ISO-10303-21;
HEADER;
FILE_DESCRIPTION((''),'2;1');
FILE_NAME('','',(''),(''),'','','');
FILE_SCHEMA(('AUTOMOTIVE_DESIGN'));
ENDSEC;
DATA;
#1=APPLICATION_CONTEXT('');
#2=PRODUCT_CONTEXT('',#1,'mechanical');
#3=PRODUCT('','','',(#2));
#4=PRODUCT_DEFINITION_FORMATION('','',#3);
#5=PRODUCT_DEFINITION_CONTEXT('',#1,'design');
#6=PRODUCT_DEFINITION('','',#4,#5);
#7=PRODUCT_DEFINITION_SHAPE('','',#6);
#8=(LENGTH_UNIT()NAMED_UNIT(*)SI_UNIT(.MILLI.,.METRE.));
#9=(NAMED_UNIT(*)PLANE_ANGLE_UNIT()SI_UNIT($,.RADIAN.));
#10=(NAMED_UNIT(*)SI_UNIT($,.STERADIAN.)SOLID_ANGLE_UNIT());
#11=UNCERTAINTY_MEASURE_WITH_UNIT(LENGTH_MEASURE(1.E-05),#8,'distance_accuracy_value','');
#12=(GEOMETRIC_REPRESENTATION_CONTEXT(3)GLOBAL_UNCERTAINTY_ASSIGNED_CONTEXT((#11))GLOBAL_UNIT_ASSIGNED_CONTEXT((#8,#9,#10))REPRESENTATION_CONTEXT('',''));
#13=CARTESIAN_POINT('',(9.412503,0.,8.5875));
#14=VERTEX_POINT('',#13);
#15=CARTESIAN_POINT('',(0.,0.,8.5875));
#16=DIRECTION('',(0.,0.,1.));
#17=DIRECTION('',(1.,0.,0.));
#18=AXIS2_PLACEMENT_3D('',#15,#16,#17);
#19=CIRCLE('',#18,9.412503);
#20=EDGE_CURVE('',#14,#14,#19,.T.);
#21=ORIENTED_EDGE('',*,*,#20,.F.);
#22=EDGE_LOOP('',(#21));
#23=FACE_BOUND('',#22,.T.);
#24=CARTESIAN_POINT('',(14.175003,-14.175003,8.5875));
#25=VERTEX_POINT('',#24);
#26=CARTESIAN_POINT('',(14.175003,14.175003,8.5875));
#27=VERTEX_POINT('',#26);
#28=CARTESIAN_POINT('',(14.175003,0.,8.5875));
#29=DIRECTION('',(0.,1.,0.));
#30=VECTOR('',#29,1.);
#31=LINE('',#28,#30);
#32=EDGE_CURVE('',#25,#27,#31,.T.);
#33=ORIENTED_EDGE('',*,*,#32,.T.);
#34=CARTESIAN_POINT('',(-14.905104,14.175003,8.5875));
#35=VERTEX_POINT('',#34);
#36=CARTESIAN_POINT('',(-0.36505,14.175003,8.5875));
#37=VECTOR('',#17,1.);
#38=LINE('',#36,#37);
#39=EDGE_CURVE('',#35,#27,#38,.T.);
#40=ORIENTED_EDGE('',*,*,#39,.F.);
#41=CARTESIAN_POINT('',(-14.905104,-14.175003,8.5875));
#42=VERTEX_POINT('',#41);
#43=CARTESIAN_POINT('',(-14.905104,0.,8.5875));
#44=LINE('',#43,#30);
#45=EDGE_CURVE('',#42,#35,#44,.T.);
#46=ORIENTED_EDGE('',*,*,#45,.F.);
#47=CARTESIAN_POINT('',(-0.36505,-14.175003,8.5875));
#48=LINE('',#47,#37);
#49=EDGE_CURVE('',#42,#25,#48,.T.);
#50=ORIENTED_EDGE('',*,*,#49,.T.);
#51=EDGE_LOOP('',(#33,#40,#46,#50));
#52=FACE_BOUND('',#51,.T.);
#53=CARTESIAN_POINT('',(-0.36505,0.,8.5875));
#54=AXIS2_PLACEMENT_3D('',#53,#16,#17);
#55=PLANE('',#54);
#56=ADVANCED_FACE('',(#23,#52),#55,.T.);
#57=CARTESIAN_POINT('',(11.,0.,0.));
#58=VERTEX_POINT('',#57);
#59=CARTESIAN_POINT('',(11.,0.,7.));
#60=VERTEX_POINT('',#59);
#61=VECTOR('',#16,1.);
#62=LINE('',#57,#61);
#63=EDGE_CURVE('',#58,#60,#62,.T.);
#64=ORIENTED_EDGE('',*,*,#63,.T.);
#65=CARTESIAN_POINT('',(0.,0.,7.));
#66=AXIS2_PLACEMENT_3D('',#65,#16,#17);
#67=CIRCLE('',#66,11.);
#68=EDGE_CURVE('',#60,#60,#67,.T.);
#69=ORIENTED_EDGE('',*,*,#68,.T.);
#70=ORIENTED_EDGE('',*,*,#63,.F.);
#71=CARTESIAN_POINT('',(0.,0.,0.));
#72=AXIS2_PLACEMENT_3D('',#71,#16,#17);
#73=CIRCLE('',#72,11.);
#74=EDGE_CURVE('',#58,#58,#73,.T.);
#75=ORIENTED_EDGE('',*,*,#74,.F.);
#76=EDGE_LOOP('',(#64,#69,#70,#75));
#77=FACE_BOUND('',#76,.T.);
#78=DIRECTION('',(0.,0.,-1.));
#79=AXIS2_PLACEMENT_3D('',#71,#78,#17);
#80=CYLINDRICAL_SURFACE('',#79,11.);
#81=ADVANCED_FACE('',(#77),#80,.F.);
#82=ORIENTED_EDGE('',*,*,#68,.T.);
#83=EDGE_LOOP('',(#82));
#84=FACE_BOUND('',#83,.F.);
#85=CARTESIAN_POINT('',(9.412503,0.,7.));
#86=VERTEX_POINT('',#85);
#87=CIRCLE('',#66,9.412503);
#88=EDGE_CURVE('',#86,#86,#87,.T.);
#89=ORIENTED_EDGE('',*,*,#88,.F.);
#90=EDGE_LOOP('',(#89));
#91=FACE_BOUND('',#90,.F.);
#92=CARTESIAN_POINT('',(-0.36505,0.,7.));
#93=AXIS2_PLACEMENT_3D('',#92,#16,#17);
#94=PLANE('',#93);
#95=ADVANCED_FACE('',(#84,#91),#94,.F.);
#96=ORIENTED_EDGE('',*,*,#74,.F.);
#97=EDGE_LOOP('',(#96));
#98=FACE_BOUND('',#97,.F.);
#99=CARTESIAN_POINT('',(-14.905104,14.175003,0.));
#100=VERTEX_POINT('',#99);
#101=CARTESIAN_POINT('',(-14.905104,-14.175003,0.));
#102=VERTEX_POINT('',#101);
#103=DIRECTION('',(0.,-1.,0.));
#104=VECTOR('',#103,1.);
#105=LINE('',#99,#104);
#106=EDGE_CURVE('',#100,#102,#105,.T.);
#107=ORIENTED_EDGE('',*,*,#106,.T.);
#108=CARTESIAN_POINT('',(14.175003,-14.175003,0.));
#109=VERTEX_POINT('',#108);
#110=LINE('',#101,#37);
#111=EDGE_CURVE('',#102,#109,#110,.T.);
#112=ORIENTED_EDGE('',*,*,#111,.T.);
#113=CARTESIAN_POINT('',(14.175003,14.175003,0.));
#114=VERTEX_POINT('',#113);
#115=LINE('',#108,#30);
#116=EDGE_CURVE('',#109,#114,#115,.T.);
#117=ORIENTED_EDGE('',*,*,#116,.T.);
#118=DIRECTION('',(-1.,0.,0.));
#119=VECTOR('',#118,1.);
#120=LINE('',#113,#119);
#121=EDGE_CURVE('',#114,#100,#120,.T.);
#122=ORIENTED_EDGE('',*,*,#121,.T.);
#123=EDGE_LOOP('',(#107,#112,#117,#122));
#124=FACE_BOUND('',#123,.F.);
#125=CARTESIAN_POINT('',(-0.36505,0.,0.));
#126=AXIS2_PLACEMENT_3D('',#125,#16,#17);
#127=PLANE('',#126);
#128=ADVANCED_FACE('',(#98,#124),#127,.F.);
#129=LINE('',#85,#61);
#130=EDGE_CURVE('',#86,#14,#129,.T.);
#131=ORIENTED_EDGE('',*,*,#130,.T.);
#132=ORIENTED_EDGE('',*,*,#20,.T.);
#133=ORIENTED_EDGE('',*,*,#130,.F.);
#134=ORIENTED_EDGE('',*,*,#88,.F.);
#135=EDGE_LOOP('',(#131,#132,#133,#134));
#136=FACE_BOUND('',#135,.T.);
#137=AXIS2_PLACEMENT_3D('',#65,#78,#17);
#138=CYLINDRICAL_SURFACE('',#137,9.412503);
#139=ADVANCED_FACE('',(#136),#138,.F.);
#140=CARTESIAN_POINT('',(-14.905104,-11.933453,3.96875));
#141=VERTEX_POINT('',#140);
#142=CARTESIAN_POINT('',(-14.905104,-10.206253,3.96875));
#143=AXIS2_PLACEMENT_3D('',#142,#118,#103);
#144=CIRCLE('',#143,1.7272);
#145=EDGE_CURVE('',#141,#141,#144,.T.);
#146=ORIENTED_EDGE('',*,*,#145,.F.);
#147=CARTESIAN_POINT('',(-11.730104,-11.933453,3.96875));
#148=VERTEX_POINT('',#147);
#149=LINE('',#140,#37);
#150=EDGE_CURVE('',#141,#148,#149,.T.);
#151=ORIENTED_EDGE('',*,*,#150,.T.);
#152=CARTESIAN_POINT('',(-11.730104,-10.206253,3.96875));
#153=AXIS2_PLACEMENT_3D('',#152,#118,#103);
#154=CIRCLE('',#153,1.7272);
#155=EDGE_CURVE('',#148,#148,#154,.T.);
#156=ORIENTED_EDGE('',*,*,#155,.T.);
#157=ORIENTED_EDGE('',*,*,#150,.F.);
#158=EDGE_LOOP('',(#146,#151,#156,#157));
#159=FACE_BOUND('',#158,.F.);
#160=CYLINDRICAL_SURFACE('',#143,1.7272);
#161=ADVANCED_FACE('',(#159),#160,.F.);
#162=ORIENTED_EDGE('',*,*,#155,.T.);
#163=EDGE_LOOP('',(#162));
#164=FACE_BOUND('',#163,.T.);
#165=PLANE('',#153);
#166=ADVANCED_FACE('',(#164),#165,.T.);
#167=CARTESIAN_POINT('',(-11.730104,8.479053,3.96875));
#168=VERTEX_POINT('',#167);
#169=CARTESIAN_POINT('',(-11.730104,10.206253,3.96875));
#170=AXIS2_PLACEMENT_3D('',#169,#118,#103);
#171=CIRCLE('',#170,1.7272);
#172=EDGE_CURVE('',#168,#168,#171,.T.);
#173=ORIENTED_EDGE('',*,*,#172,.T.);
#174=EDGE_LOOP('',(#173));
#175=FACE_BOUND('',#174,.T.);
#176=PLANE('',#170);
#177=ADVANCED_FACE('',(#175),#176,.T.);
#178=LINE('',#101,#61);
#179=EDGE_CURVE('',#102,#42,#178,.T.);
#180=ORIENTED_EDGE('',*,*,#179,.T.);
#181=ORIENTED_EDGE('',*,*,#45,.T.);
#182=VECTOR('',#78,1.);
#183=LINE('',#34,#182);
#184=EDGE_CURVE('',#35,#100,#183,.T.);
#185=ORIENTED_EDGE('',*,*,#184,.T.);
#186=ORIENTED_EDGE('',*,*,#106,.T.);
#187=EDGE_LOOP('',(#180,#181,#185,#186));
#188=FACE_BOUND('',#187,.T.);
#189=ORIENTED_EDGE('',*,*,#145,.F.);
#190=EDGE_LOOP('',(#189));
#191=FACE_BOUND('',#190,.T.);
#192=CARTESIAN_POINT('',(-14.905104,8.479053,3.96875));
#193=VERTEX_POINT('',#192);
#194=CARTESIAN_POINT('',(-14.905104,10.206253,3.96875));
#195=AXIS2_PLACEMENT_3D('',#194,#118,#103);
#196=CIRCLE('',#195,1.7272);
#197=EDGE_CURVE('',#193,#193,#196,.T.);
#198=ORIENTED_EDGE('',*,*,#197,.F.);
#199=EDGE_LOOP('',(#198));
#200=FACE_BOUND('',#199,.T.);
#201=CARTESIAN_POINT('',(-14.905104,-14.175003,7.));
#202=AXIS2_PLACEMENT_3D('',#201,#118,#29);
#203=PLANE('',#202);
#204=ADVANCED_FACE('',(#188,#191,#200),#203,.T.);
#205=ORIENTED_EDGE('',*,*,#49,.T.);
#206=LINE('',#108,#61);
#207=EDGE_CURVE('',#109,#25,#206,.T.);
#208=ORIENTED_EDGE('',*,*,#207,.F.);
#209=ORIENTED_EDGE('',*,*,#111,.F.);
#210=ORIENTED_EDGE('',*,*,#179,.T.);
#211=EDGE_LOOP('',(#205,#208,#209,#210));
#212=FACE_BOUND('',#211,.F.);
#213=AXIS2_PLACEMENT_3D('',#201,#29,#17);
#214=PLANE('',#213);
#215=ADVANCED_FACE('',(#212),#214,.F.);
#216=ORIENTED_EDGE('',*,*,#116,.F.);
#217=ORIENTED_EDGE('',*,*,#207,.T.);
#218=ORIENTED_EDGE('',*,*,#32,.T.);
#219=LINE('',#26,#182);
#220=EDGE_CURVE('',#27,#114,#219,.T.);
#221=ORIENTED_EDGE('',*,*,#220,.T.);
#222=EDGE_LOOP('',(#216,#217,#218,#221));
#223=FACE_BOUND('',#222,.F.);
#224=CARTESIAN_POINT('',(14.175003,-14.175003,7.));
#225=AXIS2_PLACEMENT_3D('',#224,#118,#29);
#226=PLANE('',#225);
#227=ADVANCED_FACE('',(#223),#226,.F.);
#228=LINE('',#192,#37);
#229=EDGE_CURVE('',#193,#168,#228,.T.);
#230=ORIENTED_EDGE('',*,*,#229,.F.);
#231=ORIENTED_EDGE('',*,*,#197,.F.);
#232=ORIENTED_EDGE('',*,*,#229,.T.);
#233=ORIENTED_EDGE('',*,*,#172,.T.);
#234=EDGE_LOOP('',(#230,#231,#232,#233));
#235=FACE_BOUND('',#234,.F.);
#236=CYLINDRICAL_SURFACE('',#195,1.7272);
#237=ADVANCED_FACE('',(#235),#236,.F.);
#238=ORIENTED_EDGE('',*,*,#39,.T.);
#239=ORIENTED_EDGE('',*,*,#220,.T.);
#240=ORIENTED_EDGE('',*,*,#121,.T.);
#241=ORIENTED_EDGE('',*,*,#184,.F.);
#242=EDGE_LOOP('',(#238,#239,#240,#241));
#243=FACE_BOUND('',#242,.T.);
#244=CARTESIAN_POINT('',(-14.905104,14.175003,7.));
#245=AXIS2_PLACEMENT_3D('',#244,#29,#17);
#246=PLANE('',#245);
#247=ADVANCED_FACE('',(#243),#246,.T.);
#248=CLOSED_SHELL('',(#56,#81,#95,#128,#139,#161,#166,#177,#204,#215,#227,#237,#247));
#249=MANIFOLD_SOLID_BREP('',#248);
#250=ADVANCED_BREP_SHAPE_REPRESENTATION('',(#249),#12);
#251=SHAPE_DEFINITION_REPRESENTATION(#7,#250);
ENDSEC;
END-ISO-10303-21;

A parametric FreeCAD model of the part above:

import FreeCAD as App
import Part
import Sketcher
from FreeCAD import Vector
Q = App.Units.Quantity

doc = App.newDocument("Part")
params = doc.addObject("Spreadsheet::Sheet", "Params")
for row, (alias, value) in enumerate([
    ("pad1_length", "7 mm"),
    ("pad2_length", "0.0625 in"),
    ("sketch3_diameter", "0.136 in"),
    ("pocket1_length", "0.125 in"),
], start=1):
    params.set(f"A{row}", alias)
    params.set(f"B{row}", "=" + value)
    params.setAlias(f"B{row}", alias)

body = doc.addObject("PartDesign::Body", "Body")

sketch1 = doc.addObject("Sketcher::SketchObject", "Sketch")
body.addObject(sketch1)
sketch1.AttachmentSupport = (doc.XY_Plane, [""])
sketch1.MapMode = "FlatFace"
sketch1.addGeometry([
    Part.LineSegment(Vector(14, 14, 0), Vector(-15, 14, 0)),
    Part.LineSegment(Vector(-15, 14, 0), Vector(-15, -14, 0)),
    Part.LineSegment(Vector(-15, -14, 0), Vector(14, -14, 0)),
    Part.LineSegment(Vector(14, -14, 0), Vector(14, 14, 0)),
    Part.Circle(Vector(0, 0, 0), Vector(0, 0, 1), 11),
], False)
sketch1.addConstraint([
    Sketcher.Constraint("Coincident", 0, 2, 1, 1),
    Sketcher.Constraint("Coincident", 1, 2, 2, 1),
    Sketcher.Constraint("Coincident", 2, 2, 3, 1),
    Sketcher.Constraint("Coincident", 3, 2, 0, 1),
    Sketcher.Constraint("Horizontal", 0),
    Sketcher.Constraint("Vertical", 1),
    Sketcher.Constraint("Horizontal", 2),
    Sketcher.Constraint("Vertical", 3),
    Sketcher.Constraint("Coincident", 4, 3, -1, 1),
    Sketcher.Constraint("Diameter", 4, 22.0),
    Sketcher.Constraint("DistanceX", 0, 2, 0, 1, 29.080107),
    Sketcher.Constraint("DistanceY", 1, 2, 1, 1, 28.350007),
    Sketcher.Constraint("DistanceX", 0, 2, -1, 1, 14.905104),
    Sketcher.Constraint("DistanceY", -1, 1, 0, 2, 14.175003),
])
pad1 = doc.addObject("PartDesign::Pad", "Pad")
body.addObject(pad1)
pad1.Profile = sketch1
pad1.setExpression("Length", "Params.pad1_length")

sketch2 = doc.addObject("Sketcher::SketchObject", "Sketch001")
body.addObject(sketch2)
sketch2.AttachmentSupport = (doc.XY_Plane, [""])
sketch2.MapMode = "FlatFace"
sketch2.AttachmentOffset = App.Placement(Vector(0, 0, 7), App.Rotation())
sketch2.addGeometry([
    Part.LineSegment(Vector(-15, 14, 0), Vector(-15, -14, 0)),
    Part.LineSegment(Vector(-15, -14, 0), Vector(14, -14, 0)),
    Part.LineSegment(Vector(14, -14, 0), Vector(14, 14, 0)),
    Part.LineSegment(Vector(14, 14, 0), Vector(-15, 14, 0)),
    Part.Circle(Vector(0, 0, 0), Vector(0, 0, 1), 9),
], False)
sketch2.addConstraint([
    Sketcher.Constraint("Coincident", 0, 2, 1, 1),
    Sketcher.Constraint("Coincident", 1, 2, 2, 1),
    Sketcher.Constraint("Coincident", 2, 2, 3, 1),
    Sketcher.Constraint("Coincident", 3, 2, 0, 1),
    Sketcher.Constraint("Vertical", 0),
    Sketcher.Constraint("Horizontal", 1),
    Sketcher.Constraint("Vertical", 2),
    Sketcher.Constraint("Horizontal", 3),
    Sketcher.Constraint("Coincident", 4, 3, -1, 1),
    Sketcher.Constraint("Diameter", 4, 18.825007),
    Sketcher.Constraint("DistanceX", 1, 1, 1, 2, 29.080107),
    Sketcher.Constraint("DistanceY", 0, 2, 0, 1, 28.350007),
    Sketcher.Constraint("DistanceX", 0, 2, -1, 1, 14.905104),
    Sketcher.Constraint("DistanceY", 0, 2, -1, 1, 14.175003),
])
pad2 = doc.addObject("PartDesign::Pad", "Pad001")
body.addObject(pad2)
pad2.Profile = sketch2
pad2.setExpression("Length", "Params.pad2_length")

sketch3 = doc.addObject("Sketcher::SketchObject", "Sketch002")
body.addObject(sketch3)
sketch3.AttachmentSupport = (doc.YZ_Plane, [""])
sketch3.MapMode = "FlatFace"
sketch3.AttachmentOffset = App.Placement(Vector(0, 0, -14.905104), App.Rotation())
sketch3.addGeometry([
    Part.Circle(Vector(-10.2, 4, 0), Vector(0, 0, 1), 1.7),
    Part.Circle(Vector(10.2, 4, 0), Vector(0, 0, 1), 1.7),
], False)
sketch3.addConstraint([
    Sketcher.Constraint("Equal", 0, 1),
    Sketcher.Constraint("Symmetric", 0, 3, 1, 3, -2),
    Sketcher.Constraint("Diameter", 0, Q("0.136 in")),
    Sketcher.Constraint("DistanceY", -1, 1, 0, 3, Q("0.15625 in")),
    Sketcher.Constraint("DistanceX", 0, 3, -1, 1, 10.206253),
])
sketch3.setExpression("Constraints[2]", "Params.sketch3_diameter")
pocket1 = doc.addObject("PartDesign::Pocket", "Pocket")
body.addObject(pocket1)
pocket1.Profile = sketch3
pocket1.setExpression("Length", "Params.pocket1_length")
pocket1.Reversed = True

doc.recompute()
